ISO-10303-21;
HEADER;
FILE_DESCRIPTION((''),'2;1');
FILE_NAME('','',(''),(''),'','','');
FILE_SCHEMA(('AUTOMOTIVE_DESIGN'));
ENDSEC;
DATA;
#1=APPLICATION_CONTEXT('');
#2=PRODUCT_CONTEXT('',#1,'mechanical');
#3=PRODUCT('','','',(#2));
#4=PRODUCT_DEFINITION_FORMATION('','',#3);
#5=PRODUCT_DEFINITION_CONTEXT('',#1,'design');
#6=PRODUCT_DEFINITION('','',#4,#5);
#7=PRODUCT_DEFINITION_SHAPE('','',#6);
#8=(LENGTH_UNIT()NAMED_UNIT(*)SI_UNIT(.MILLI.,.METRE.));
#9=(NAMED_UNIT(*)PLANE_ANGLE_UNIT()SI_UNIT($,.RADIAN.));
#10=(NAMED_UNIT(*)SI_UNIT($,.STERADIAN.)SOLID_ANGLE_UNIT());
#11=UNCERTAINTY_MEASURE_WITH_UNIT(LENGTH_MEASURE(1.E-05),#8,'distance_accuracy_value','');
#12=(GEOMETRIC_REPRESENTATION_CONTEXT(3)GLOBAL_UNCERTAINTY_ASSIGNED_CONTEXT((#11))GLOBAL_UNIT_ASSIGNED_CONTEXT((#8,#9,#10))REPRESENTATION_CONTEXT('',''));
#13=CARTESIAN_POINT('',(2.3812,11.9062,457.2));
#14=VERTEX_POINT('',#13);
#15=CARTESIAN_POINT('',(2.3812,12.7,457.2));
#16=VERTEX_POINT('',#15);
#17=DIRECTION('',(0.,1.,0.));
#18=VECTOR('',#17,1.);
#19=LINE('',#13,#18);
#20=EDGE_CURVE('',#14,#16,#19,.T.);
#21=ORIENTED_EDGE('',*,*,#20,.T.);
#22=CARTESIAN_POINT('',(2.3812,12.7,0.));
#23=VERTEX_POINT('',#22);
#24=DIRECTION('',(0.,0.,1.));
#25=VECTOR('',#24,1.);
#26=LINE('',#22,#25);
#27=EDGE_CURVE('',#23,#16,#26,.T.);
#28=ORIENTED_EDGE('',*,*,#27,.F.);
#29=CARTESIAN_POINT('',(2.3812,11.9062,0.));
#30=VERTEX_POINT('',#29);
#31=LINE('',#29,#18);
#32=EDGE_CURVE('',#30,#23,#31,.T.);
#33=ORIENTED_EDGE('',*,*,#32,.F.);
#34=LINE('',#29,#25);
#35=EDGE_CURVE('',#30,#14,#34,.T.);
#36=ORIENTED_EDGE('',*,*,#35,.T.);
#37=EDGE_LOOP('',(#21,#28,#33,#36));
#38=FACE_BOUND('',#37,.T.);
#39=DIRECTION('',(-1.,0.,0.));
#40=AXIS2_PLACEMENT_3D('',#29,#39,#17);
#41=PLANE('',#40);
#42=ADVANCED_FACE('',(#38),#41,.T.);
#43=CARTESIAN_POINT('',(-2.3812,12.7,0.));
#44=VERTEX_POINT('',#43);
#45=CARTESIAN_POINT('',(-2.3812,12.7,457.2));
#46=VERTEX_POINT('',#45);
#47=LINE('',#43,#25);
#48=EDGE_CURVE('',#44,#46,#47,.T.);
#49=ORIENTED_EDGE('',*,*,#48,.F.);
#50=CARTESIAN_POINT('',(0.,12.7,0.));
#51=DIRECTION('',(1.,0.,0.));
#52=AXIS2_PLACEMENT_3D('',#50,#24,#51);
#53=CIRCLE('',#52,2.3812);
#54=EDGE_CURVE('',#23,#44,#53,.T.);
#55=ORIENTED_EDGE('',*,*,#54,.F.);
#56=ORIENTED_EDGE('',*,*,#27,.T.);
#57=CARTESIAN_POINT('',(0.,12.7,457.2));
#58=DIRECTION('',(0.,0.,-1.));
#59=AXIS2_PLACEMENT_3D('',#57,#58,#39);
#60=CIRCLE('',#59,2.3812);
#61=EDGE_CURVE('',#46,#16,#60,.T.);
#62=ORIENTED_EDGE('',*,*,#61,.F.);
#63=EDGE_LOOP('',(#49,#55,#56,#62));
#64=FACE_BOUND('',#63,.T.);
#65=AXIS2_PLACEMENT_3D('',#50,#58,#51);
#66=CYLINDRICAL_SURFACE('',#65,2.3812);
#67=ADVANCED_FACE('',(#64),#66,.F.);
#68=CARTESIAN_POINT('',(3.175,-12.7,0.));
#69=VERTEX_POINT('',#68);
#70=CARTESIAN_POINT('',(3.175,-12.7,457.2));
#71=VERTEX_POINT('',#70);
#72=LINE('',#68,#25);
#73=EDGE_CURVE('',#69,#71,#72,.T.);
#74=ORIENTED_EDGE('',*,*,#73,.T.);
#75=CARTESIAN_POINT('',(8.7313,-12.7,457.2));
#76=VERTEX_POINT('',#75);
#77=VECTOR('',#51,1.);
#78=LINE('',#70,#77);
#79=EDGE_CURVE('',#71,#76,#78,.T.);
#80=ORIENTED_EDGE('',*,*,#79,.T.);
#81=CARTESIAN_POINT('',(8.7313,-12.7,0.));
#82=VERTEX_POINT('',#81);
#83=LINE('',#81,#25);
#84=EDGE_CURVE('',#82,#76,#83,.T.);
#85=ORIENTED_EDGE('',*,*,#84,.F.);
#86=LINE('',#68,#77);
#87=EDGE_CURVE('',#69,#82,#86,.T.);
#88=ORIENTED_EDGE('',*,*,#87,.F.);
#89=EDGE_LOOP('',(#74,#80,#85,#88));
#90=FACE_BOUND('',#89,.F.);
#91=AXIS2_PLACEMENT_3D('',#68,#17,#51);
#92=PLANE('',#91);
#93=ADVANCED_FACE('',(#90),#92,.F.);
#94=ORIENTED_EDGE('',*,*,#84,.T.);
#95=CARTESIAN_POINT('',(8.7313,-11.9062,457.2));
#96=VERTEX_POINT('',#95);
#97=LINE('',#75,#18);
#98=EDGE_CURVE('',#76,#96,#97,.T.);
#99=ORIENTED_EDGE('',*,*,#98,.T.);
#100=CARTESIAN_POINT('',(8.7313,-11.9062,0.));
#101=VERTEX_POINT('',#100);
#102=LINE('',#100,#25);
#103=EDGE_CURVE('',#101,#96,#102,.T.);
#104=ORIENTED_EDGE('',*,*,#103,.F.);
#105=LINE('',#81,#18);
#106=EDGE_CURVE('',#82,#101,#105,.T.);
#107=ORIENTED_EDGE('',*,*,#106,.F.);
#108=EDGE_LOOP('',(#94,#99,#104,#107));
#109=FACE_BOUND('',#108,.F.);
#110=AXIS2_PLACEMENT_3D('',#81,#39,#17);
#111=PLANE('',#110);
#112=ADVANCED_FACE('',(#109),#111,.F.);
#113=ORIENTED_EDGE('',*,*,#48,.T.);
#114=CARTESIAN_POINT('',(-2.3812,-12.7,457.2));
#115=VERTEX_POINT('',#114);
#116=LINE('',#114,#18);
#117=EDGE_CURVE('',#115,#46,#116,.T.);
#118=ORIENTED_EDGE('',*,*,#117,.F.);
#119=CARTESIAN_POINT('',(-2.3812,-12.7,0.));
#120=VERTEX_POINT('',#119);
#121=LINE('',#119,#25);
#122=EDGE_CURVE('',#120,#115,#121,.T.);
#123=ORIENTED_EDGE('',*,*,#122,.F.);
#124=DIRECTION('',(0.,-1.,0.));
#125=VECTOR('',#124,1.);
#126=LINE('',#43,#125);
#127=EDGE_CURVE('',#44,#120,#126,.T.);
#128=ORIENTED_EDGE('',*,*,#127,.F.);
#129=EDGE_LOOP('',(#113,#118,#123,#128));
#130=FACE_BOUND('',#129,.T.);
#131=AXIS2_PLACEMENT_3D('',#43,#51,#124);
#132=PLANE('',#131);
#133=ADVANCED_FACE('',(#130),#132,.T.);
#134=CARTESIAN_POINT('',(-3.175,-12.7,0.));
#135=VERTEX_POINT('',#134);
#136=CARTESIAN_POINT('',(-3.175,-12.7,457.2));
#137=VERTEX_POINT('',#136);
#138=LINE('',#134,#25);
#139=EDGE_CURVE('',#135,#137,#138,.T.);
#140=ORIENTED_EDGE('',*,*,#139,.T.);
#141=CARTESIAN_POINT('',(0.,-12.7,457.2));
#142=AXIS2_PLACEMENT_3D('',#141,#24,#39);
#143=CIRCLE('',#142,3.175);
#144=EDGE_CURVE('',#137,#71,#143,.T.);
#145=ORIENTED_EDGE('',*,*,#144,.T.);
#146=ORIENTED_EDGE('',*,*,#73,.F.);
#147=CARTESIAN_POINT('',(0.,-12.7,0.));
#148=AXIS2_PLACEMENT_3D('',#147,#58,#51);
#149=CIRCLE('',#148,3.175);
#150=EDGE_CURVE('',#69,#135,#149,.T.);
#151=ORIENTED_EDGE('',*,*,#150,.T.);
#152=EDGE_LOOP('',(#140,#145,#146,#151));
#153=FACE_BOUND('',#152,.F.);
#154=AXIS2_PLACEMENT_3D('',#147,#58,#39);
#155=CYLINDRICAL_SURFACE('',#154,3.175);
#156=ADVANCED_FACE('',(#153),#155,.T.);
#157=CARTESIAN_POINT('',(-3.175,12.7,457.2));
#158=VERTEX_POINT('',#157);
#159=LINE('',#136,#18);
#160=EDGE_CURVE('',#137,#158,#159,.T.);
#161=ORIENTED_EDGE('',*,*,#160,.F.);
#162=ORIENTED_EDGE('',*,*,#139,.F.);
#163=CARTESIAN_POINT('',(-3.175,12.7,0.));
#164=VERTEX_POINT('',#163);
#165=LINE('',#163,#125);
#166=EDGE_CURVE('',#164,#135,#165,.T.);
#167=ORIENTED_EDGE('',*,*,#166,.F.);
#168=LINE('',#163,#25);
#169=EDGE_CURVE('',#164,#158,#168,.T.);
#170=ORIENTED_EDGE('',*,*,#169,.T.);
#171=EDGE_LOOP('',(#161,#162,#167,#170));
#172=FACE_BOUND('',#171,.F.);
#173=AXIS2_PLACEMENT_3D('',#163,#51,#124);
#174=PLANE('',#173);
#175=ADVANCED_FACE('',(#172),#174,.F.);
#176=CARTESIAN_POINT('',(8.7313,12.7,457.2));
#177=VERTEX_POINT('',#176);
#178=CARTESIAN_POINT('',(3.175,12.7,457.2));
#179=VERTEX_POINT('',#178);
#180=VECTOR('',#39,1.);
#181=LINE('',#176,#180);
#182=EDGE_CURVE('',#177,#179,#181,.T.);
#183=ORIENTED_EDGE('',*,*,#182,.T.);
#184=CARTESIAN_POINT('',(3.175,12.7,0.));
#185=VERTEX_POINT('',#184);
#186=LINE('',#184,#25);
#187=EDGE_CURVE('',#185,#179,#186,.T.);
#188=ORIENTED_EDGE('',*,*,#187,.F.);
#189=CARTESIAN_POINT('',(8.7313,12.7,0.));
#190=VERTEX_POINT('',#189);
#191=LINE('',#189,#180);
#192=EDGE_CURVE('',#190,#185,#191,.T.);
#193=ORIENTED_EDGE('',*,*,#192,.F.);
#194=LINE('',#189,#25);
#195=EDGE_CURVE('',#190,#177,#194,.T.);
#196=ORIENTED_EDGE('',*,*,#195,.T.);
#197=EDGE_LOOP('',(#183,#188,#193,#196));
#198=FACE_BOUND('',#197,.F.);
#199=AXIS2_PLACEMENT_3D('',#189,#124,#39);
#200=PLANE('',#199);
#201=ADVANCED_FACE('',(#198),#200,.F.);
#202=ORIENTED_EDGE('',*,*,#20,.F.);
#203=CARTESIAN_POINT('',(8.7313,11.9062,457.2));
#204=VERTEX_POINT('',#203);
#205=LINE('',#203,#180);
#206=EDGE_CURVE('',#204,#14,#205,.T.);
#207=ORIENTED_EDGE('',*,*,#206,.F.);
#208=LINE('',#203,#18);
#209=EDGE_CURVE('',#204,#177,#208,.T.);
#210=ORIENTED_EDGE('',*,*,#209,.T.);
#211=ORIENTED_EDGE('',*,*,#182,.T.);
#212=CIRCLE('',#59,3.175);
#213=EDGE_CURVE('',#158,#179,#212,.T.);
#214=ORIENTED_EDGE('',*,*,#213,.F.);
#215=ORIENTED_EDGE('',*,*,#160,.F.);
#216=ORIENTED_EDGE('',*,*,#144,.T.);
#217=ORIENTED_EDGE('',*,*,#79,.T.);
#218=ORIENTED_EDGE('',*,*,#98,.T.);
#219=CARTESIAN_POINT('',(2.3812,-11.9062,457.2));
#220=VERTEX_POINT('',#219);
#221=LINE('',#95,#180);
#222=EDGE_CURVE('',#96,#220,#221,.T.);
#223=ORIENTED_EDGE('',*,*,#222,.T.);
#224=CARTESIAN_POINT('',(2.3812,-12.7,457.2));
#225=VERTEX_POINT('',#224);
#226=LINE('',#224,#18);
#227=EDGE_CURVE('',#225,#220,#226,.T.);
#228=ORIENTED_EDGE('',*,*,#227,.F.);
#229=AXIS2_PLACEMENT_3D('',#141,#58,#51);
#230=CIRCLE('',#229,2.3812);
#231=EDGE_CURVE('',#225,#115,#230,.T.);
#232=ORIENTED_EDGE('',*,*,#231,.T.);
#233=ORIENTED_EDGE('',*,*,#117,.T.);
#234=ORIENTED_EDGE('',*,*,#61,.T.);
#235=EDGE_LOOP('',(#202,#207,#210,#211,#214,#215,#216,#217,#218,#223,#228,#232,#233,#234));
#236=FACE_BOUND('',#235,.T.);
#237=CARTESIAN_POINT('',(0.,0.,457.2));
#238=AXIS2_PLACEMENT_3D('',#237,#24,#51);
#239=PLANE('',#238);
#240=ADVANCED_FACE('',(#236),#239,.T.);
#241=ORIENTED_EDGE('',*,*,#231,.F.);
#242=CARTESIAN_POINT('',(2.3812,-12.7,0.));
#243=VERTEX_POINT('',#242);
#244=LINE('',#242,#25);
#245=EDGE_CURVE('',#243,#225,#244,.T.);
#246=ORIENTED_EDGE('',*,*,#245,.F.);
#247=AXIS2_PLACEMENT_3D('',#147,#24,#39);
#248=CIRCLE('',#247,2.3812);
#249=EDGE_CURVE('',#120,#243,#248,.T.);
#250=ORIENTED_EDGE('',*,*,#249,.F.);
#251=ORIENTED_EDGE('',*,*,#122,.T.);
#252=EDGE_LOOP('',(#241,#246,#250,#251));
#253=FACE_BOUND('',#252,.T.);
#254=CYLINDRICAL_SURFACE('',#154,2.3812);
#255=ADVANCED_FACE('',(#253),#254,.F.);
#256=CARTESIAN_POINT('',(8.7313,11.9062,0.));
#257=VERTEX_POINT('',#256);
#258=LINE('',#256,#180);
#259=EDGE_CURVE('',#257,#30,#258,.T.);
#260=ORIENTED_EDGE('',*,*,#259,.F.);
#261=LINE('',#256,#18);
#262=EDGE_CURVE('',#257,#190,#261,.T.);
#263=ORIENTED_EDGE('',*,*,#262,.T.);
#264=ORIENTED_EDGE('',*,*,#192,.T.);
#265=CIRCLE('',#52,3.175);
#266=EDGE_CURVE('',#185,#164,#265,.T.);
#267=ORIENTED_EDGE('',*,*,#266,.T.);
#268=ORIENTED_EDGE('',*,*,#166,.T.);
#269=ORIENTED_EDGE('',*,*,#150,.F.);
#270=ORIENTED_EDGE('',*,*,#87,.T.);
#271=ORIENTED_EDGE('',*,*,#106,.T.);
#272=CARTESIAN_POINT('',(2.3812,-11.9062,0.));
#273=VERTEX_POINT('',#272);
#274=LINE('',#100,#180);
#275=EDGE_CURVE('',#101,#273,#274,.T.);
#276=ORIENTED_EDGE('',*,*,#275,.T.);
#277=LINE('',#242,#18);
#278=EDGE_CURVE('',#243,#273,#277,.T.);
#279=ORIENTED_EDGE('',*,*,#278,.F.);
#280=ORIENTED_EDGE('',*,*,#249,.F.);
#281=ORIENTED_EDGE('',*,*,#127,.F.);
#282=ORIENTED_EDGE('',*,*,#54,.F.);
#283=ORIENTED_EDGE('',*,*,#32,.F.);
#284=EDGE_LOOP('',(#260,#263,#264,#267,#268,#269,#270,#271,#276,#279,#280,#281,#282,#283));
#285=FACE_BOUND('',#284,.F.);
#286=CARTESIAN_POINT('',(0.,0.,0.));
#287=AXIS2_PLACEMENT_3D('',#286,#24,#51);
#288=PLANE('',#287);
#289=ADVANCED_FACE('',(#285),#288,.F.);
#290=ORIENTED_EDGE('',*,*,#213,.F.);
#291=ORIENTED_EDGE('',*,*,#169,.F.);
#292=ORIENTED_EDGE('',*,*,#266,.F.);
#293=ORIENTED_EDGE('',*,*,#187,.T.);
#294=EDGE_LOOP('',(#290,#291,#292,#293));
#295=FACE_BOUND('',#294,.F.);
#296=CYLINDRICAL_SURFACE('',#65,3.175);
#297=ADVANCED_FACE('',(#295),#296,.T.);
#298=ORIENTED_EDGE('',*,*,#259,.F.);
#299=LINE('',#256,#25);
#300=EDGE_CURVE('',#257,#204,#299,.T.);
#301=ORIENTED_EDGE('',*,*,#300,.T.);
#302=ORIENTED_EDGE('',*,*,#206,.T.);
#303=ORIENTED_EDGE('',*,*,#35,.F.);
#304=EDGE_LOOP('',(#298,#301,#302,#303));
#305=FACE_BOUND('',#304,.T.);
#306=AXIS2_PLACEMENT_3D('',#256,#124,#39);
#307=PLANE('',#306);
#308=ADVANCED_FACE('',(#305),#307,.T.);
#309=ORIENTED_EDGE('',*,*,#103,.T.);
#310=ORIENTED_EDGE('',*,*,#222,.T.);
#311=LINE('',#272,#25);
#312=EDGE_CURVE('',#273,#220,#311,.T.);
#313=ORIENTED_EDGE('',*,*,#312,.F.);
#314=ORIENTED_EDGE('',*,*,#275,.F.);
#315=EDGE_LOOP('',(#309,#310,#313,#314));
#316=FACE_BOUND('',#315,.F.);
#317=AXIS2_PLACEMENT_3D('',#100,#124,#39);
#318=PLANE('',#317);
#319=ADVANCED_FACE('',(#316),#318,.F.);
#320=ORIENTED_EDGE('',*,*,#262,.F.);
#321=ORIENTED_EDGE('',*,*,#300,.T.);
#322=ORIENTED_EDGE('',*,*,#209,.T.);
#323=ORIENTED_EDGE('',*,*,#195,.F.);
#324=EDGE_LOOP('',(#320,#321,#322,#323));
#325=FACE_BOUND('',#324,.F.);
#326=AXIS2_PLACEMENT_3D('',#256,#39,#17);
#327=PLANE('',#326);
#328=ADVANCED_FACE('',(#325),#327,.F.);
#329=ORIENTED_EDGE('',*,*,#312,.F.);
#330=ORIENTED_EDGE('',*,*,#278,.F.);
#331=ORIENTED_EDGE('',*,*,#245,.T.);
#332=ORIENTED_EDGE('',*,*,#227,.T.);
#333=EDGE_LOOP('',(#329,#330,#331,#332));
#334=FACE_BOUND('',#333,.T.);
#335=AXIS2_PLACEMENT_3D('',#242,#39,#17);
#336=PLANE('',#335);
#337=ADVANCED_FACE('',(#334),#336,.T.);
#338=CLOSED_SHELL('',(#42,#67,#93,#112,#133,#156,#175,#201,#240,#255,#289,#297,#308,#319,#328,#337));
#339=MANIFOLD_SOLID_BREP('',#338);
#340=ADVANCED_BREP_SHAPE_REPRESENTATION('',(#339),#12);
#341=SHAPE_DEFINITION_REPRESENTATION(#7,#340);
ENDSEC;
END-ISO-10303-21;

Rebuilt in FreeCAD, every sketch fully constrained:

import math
import FreeCAD as App
import Part
import Sketcher
from FreeCAD import Vector
Q = App.Units.Quantity

doc = App.newDocument("Part")
params = doc.addObject("Spreadsheet::Sheet", "Params")
for row, (alias, value) in enumerate([
    ("sketch1_height", "1 in"),
    ("sketch1_width", "0.218752 in"),
    ("sketch1_height2", "0.031252 in"),
    ("sketch1_radius", "0.125 in"),
    ("sketch1_radius2", "0.093748 in"),
    ("pad1_length", "18 in"),
], start=1):
    params.set(f"A{row}", alias)
    params.set(f"B{row}", "=" + value)
    params.setAlias(f"B{row}", alias)

body = doc.addObject("PartDesign::Body", "Body")

sketch1 = body.newObject("Sketcher::SketchObject", "Sketch")
sketch1.AttachmentSupport = (doc.getObject("XY_Plane"), [""])
sketch1.MapMode = "FlatFace"
sketch1.addGeometry([
    Part.LineSegment(Vector(-3.2, 12.7, 0), Vector(-3.2, -12.7, 0)),
    Part.ArcOfCircle(Part.Circle(Vector(0, -12.7, 0), Vector(0, 0, 1), 3.2), math.radians(180), math.radians(360)),
    Part.LineSegment(Vector(3.2, -12.7, 0), Vector(8.7, -12.7, 0)),
    Part.LineSegment(Vector(8.7, -12.7, 0), Vector(8.7, -11.9, 0)),
    Part.LineSegment(Vector(8.7, -11.9, 0), Vector(2.4, -11.9, 0)),
    Part.LineSegment(Vector(2.4, -11.9, 0), Vector(2.4, -12.7, 0)),
    Part.ArcOfCircle(Part.Circle(Vector(0, -12.7, 0), Vector(0, 0, 1), 2.4), math.radians(180), math.radians(360)),
    Part.LineSegment(Vector(-2.4, -12.7, 0), Vector(-2.4, 12.7, 0)),
    Part.ArcOfCircle(Part.Circle(Vector(0, 12.7, 0), Vector(0, 0, 1), 2.4), math.radians(0), math.radians(180)),
    Part.LineSegment(Vector(2.4, 12.7, 0), Vector(2.4, 11.9, 0)),
    Part.LineSegment(Vector(2.4, 11.9, 0), Vector(8.7, 11.9, 0)),
    Part.LineSegment(Vector(8.7, 11.9, 0), Vector(8.7, 12.7, 0)),
    Part.LineSegment(Vector(8.7, 12.7, 0), Vector(3.2, 12.7, 0)),
    Part.ArcOfCircle(Part.Circle(Vector(0, 12.7, 0), Vector(0, 0, 1), 3.2), math.radians(0), math.radians(180)),
], False)
sketch1.addConstraint([
    Sketcher.Constraint("Tangent", 0, 2, 1, 1),
    Sketcher.Constraint("Coincident", 1, 2, 2, 1),
    Sketcher.Constraint("Coincident", 2, 2, 3, 1),
    Sketcher.Constraint("Coincident", 3, 2, 4, 1),
    Sketcher.Constraint("Coincident", 4, 2, 5, 1),
    Sketcher.Constraint("Tangent", 5, 2, 6, 2),
    Sketcher.Constraint("Tangent", 6, 1, 7, 1),
    Sketcher.Constraint("Tangent", 7, 2, 8, 2),
    Sketcher.Constraint("Tangent", 8, 1, 9, 1),
    Sketcher.Constraint("Coincident", 9, 2, 10, 1),
    Sketcher.Constraint("Coincident", 10, 2, 11, 1),
    Sketcher.Constraint("Coincident", 11, 2, 12, 1),
    Sketcher.Constraint("Coincident", 12, 2, 13, 1),
    Sketcher.Constraint("Tangent", 13, 2, 0, 1),
    Sketcher.Constraint("Vertical", 0),
    Sketcher.Constraint("Horizontal", 2),
    Sketcher.Constraint("Vertical", 3),
    Sketcher.Constraint("Horizontal", 4),
    Sketcher.Constraint("Vertical", 5),
    Sketcher.Constraint("Vertical", 7),
    Sketcher.Constraint("Vertical", 9),
    Sketcher.Constraint("Horizontal", 10),
    Sketcher.Constraint("Vertical", 11),
    Sketcher.Constraint("Horizontal", 12),
    Sketcher.Constraint("Coincident", 6, 3, 1, 3),
    Sketcher.Constraint("Coincident", 13, 3, 8, 3),
    Sketcher.Constraint("Equal", 6, 8),
    Sketcher.Constraint("Symmetric", 1, 3, 8, 3, -1, 1),
    Sketcher.Constraint("Symmetric", 3, 2, 10, 2, -1),
    Sketcher.Constraint("Horizontal", 0, 2, 1, 2),
    Sketcher.Constraint("Horizontal", 8, 1, 11, 2),
    Sketcher.Constraint("DistanceY", 0, 2, 0, 1, Q("1 in")),
    Sketcher.Constraint("DistanceX", 2, 1, 2, 2, Q("0.218752 in")),
    Sketcher.Constraint("DistanceY", 3, 1, 3, 2, Q("0.031252 in")),
    Sketcher.Constraint("Radius", 1, Q("0.125 in")),
    Sketcher.Constraint("Radius", 6, Q("0.093748 in")),
])
sketch1.setExpression("Constraints[31]", "Params.sketch1_height")
sketch1.setExpression("Constraints[32]", "Params.sketch1_width")
sketch1.setExpression("Constraints[33]", "Params.sketch1_height2")
sketch1.setExpression("Constraints[34]", "Params.sketch1_radius")
sketch1.setExpression("Constraints[35]", "Params.sketch1_radius2")
pad1 = body.newObject("PartDesign::Pad", "Pad")
pad1.Profile = sketch1
pad1.setExpression("Length", "Params.pad1_length")

doc.recompute()
